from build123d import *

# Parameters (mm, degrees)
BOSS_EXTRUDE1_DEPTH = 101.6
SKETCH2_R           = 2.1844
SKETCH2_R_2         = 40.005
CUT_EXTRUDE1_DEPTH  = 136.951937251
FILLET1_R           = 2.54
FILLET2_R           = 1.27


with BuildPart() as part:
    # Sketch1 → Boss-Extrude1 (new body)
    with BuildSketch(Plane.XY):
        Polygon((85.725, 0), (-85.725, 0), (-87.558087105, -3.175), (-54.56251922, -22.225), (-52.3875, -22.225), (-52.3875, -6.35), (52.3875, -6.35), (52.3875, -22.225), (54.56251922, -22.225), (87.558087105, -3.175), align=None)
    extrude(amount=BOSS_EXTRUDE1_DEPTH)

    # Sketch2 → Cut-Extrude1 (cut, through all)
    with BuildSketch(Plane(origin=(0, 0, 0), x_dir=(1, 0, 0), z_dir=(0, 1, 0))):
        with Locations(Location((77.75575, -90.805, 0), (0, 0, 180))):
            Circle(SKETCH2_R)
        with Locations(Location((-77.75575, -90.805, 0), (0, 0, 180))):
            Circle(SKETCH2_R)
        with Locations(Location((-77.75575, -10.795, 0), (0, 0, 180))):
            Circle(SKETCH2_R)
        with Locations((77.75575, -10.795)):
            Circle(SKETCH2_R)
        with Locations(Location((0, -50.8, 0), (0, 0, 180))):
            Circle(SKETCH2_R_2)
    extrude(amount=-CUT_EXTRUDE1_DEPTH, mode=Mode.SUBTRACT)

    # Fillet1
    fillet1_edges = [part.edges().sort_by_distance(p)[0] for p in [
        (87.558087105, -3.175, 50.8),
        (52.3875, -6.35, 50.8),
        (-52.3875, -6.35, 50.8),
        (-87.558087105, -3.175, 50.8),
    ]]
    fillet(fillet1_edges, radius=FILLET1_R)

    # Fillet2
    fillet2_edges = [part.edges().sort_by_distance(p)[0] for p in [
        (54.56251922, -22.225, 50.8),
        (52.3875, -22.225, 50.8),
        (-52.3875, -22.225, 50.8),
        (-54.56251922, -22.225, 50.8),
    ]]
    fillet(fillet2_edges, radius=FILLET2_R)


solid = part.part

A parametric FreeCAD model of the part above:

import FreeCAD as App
import Part
import Sketcher

V = App.Vector
Q = App.Units.Quantity


def edges_at(feature, points):
    """Names of the edges that pass closest to the given points."""
    edges = feature.Shape.Edges
    near = lambda p: min(range(len(edges)), key=lambda i: edges[i].distToShape(Part.Vertex(*p))[0])
    return sorted({f"Edge{near(p) + 1}" for p in points})


def add_polygon(sketch, points):
    """Adds a closed chain of lines whose ends are joined by coincident constraints."""
    first, n = sketch.GeometryCount, len(points)
    for a, b in zip(points, points[1:] + points[:1]):
        sketch.addGeometry(Part.LineSegment(App.Vector(*a, 0), App.Vector(*b, 0)), False)
    for i in range(n):
        sketch.addConstraint(Sketcher.Constraint("Coincident", first + i, 2, first + (i + 1) % n, 1))

doc = App.newDocument("Part")
params = doc.addObject("Spreadsheet::Sheet", "Params")
for row, (alias, value) in enumerate([
    ("sketch1_length", "1.5 in"),
    ("sketch1_width", "6.75 in"),
    ("sketch1_width2", "4.125 in"),
    ("sketch1_height", "0.625 in"),
    ("pad1_length", "4 in"),
    ("sketch2_diameter", "3.15 in"),
    ("sketch2_diameter2", "0.172 in"),
    ("fillet_radius", "0.1 in"),
    ("fillet2_radius", "0.05 in"),
], start=1):
    params.set(f"A{row}", alias)
    params.set(f"B{row}", "=" + value)
    params.setAlias(f"B{row}", alias)

body = doc.addObject("PartDesign::Body", "Body")

# Sketch on XY plane
sketch1 = body.newObject("Sketcher::SketchObject", "Sketch")
sketch1.AttachmentSupport = (doc.getObject("XY_Plane"), [""])
sketch1.MapMode = "FlatFace"
add_polygon(sketch1, [(85.7, 0), (-85.7, 0), (-87.6, -3.2), (-54.6, -22.2), (-52.4, -22.2), (-52.4, -6.3), (52.4, -6.3), (52.4, -22.2), (54.6, -22.2), (87.6, -3.2)])  # lines 0-9
sketch1.addConstraint([
    Sketcher.Constraint("Horizontal", 0),
    Sketcher.Constraint("Horizontal", 3),
    Sketcher.Constraint("Vertical", 4),
    Sketcher.Constraint("Horizontal", 5),
    Sketcher.Constraint("Vertical", 6),
    Sketcher.Constraint("Horizontal", 7),
    Sketcher.Constraint("Symmetric", 0, 2, 9, 2, -1, 1),
    Sketcher.Constraint("Symmetric", 3, 2, 6, 2, -2),
    Sketcher.Constraint("Symmetric", 1, 2, 8, 2, -2),
    Sketcher.Constraint("Perpendicular", 1, 2),
    Sketcher.Constraint("Perpendicular", 8, 9),
    Sketcher.Constraint("Angle", 1, Q("-120 deg")),
    Sketcher.Constraint("Distance", 2, Q("1.5 in")),
    Sketcher.Constraint("DistanceX", 0, 2, 0, 1, Q("6.75 in")),
    Sketcher.Constraint("DistanceX", 5, 1, 5, 2, Q("4.125 in")),
    Sketcher.Constraint("DistanceY", 4, 1, 4, 2, Q("0.625 in")),
    Sketcher.Constraint("DistanceY", 4, 2, -1, 1, Q("0.25 in")),
])
sketch1.setExpression("Constraints[22]", "Params.sketch1_length")
sketch1.setExpression("Constraints[23]", "Params.sketch1_width")
sketch1.setExpression("Constraints[24]", "Params.sketch1_width2")
sketch1.setExpression("Constraints[25]", "Params.sketch1_height")
pad1 = body.newObject("PartDesign::Pad", "Pad")
pad1.Profile = sketch1
pad1.setExpression("Length", "Params.pad1_length")

# Sketch on XZ plane
sketch2 = body.newObject("Sketcher::SketchObject", "Sketch001")
sketch2.AttachmentSupport = (doc.getObject("XZ_Plane"), [""])
sketch2.MapMode = "FlatFace"
sketch2.addGeometry([
    Part.Circle(V(77.8, 90.8, 0), V(0, 0, 1), 2.2),  # 0
    Part.Circle(V(-77.8, 90.8, 0), V(0, 0, 1), 2.2),  # 1
    Part.Circle(V(-77.8, 10.8, 0), V(0, 0, 1), 2.2),  # 2
    Part.Circle(V(77.8, 10.8, 0), V(0, 0, 1), 2.2),  # 3
    Part.Circle(V(0, 50.8, 0), V(0, 0, 1), 40),  # 4
], False)
sketch2.addConstraint([
    Sketcher.Constraint("Equal", 0, 1),
    Sketcher.Constraint("Equal", 1, 2),
    Sketcher.Constraint("Equal", 2, 3),
    Sketcher.Constraint("Symmetric", 0, 3, 1, 3, -2),
    Sketcher.Constraint("Symmetric", 2, 3, 3, 3, -2),
    Sketcher.Constraint("PointOnObject", 4, 3, -2),
    Sketcher.Constraint("Vertical", 1, 3, 2, 3),
    Sketcher.Constraint("Diameter", 4, Q("3.15 in")),
    Sketcher.Constraint("Diameter", 0, Q("0.172 in")),
    Sketcher.Constraint("DistanceY", -1, 1, 4, 3, Q("2 in")),
    Sketcher.Constraint("DistanceY", 2, 3, 1, 3, Q("3.15 in")),
    Sketcher.Constraint("DistanceY", -1, 1, 0, 3, Q("3.575 in")),
    Sketcher.Constraint("DistanceX", 1, 3, 0, 3, Q("6.1225 in")),
])
sketch2.setExpression("Constraints[7]", "Params.sketch2_diameter")
sketch2.setExpression("Constraints[8]", "Params.sketch2_diameter2")
pocket1 = body.newObject("PartDesign::Pocket", "Pocket")
pocket1.Profile = sketch2
pocket1.Type = "ThroughAll"
pocket1.Reversed = True
doc.recompute()

fillet = body.newObject("PartDesign::Fillet", "Fillet")
fillet.Base = (pocket1, edges_at(pocket1, [
    (87.558, -3.175, 50.8),
    (52.388, -6.35, 50.8),
    (-52.388, -6.35, 50.8),
    (-87.558, -3.175, 50.8),
]))
fillet.setExpression("Radius", "Params.fillet_radius")
doc.recompute()

fillet2 = body.newObject("PartDesign::Fillet", "Fillet001")
fillet2.Base = (fillet, edges_at(fillet, [
    (54.563, -22.225, 50.8),
    (52.388, -22.225, 50.8),
    (-52.388, -22.225, 50.8),
    (-54.563, -22.225, 50.8),
]))
fillet2.setExpression("Radius", "Params.fillet2_radius")

doc.recompute()
